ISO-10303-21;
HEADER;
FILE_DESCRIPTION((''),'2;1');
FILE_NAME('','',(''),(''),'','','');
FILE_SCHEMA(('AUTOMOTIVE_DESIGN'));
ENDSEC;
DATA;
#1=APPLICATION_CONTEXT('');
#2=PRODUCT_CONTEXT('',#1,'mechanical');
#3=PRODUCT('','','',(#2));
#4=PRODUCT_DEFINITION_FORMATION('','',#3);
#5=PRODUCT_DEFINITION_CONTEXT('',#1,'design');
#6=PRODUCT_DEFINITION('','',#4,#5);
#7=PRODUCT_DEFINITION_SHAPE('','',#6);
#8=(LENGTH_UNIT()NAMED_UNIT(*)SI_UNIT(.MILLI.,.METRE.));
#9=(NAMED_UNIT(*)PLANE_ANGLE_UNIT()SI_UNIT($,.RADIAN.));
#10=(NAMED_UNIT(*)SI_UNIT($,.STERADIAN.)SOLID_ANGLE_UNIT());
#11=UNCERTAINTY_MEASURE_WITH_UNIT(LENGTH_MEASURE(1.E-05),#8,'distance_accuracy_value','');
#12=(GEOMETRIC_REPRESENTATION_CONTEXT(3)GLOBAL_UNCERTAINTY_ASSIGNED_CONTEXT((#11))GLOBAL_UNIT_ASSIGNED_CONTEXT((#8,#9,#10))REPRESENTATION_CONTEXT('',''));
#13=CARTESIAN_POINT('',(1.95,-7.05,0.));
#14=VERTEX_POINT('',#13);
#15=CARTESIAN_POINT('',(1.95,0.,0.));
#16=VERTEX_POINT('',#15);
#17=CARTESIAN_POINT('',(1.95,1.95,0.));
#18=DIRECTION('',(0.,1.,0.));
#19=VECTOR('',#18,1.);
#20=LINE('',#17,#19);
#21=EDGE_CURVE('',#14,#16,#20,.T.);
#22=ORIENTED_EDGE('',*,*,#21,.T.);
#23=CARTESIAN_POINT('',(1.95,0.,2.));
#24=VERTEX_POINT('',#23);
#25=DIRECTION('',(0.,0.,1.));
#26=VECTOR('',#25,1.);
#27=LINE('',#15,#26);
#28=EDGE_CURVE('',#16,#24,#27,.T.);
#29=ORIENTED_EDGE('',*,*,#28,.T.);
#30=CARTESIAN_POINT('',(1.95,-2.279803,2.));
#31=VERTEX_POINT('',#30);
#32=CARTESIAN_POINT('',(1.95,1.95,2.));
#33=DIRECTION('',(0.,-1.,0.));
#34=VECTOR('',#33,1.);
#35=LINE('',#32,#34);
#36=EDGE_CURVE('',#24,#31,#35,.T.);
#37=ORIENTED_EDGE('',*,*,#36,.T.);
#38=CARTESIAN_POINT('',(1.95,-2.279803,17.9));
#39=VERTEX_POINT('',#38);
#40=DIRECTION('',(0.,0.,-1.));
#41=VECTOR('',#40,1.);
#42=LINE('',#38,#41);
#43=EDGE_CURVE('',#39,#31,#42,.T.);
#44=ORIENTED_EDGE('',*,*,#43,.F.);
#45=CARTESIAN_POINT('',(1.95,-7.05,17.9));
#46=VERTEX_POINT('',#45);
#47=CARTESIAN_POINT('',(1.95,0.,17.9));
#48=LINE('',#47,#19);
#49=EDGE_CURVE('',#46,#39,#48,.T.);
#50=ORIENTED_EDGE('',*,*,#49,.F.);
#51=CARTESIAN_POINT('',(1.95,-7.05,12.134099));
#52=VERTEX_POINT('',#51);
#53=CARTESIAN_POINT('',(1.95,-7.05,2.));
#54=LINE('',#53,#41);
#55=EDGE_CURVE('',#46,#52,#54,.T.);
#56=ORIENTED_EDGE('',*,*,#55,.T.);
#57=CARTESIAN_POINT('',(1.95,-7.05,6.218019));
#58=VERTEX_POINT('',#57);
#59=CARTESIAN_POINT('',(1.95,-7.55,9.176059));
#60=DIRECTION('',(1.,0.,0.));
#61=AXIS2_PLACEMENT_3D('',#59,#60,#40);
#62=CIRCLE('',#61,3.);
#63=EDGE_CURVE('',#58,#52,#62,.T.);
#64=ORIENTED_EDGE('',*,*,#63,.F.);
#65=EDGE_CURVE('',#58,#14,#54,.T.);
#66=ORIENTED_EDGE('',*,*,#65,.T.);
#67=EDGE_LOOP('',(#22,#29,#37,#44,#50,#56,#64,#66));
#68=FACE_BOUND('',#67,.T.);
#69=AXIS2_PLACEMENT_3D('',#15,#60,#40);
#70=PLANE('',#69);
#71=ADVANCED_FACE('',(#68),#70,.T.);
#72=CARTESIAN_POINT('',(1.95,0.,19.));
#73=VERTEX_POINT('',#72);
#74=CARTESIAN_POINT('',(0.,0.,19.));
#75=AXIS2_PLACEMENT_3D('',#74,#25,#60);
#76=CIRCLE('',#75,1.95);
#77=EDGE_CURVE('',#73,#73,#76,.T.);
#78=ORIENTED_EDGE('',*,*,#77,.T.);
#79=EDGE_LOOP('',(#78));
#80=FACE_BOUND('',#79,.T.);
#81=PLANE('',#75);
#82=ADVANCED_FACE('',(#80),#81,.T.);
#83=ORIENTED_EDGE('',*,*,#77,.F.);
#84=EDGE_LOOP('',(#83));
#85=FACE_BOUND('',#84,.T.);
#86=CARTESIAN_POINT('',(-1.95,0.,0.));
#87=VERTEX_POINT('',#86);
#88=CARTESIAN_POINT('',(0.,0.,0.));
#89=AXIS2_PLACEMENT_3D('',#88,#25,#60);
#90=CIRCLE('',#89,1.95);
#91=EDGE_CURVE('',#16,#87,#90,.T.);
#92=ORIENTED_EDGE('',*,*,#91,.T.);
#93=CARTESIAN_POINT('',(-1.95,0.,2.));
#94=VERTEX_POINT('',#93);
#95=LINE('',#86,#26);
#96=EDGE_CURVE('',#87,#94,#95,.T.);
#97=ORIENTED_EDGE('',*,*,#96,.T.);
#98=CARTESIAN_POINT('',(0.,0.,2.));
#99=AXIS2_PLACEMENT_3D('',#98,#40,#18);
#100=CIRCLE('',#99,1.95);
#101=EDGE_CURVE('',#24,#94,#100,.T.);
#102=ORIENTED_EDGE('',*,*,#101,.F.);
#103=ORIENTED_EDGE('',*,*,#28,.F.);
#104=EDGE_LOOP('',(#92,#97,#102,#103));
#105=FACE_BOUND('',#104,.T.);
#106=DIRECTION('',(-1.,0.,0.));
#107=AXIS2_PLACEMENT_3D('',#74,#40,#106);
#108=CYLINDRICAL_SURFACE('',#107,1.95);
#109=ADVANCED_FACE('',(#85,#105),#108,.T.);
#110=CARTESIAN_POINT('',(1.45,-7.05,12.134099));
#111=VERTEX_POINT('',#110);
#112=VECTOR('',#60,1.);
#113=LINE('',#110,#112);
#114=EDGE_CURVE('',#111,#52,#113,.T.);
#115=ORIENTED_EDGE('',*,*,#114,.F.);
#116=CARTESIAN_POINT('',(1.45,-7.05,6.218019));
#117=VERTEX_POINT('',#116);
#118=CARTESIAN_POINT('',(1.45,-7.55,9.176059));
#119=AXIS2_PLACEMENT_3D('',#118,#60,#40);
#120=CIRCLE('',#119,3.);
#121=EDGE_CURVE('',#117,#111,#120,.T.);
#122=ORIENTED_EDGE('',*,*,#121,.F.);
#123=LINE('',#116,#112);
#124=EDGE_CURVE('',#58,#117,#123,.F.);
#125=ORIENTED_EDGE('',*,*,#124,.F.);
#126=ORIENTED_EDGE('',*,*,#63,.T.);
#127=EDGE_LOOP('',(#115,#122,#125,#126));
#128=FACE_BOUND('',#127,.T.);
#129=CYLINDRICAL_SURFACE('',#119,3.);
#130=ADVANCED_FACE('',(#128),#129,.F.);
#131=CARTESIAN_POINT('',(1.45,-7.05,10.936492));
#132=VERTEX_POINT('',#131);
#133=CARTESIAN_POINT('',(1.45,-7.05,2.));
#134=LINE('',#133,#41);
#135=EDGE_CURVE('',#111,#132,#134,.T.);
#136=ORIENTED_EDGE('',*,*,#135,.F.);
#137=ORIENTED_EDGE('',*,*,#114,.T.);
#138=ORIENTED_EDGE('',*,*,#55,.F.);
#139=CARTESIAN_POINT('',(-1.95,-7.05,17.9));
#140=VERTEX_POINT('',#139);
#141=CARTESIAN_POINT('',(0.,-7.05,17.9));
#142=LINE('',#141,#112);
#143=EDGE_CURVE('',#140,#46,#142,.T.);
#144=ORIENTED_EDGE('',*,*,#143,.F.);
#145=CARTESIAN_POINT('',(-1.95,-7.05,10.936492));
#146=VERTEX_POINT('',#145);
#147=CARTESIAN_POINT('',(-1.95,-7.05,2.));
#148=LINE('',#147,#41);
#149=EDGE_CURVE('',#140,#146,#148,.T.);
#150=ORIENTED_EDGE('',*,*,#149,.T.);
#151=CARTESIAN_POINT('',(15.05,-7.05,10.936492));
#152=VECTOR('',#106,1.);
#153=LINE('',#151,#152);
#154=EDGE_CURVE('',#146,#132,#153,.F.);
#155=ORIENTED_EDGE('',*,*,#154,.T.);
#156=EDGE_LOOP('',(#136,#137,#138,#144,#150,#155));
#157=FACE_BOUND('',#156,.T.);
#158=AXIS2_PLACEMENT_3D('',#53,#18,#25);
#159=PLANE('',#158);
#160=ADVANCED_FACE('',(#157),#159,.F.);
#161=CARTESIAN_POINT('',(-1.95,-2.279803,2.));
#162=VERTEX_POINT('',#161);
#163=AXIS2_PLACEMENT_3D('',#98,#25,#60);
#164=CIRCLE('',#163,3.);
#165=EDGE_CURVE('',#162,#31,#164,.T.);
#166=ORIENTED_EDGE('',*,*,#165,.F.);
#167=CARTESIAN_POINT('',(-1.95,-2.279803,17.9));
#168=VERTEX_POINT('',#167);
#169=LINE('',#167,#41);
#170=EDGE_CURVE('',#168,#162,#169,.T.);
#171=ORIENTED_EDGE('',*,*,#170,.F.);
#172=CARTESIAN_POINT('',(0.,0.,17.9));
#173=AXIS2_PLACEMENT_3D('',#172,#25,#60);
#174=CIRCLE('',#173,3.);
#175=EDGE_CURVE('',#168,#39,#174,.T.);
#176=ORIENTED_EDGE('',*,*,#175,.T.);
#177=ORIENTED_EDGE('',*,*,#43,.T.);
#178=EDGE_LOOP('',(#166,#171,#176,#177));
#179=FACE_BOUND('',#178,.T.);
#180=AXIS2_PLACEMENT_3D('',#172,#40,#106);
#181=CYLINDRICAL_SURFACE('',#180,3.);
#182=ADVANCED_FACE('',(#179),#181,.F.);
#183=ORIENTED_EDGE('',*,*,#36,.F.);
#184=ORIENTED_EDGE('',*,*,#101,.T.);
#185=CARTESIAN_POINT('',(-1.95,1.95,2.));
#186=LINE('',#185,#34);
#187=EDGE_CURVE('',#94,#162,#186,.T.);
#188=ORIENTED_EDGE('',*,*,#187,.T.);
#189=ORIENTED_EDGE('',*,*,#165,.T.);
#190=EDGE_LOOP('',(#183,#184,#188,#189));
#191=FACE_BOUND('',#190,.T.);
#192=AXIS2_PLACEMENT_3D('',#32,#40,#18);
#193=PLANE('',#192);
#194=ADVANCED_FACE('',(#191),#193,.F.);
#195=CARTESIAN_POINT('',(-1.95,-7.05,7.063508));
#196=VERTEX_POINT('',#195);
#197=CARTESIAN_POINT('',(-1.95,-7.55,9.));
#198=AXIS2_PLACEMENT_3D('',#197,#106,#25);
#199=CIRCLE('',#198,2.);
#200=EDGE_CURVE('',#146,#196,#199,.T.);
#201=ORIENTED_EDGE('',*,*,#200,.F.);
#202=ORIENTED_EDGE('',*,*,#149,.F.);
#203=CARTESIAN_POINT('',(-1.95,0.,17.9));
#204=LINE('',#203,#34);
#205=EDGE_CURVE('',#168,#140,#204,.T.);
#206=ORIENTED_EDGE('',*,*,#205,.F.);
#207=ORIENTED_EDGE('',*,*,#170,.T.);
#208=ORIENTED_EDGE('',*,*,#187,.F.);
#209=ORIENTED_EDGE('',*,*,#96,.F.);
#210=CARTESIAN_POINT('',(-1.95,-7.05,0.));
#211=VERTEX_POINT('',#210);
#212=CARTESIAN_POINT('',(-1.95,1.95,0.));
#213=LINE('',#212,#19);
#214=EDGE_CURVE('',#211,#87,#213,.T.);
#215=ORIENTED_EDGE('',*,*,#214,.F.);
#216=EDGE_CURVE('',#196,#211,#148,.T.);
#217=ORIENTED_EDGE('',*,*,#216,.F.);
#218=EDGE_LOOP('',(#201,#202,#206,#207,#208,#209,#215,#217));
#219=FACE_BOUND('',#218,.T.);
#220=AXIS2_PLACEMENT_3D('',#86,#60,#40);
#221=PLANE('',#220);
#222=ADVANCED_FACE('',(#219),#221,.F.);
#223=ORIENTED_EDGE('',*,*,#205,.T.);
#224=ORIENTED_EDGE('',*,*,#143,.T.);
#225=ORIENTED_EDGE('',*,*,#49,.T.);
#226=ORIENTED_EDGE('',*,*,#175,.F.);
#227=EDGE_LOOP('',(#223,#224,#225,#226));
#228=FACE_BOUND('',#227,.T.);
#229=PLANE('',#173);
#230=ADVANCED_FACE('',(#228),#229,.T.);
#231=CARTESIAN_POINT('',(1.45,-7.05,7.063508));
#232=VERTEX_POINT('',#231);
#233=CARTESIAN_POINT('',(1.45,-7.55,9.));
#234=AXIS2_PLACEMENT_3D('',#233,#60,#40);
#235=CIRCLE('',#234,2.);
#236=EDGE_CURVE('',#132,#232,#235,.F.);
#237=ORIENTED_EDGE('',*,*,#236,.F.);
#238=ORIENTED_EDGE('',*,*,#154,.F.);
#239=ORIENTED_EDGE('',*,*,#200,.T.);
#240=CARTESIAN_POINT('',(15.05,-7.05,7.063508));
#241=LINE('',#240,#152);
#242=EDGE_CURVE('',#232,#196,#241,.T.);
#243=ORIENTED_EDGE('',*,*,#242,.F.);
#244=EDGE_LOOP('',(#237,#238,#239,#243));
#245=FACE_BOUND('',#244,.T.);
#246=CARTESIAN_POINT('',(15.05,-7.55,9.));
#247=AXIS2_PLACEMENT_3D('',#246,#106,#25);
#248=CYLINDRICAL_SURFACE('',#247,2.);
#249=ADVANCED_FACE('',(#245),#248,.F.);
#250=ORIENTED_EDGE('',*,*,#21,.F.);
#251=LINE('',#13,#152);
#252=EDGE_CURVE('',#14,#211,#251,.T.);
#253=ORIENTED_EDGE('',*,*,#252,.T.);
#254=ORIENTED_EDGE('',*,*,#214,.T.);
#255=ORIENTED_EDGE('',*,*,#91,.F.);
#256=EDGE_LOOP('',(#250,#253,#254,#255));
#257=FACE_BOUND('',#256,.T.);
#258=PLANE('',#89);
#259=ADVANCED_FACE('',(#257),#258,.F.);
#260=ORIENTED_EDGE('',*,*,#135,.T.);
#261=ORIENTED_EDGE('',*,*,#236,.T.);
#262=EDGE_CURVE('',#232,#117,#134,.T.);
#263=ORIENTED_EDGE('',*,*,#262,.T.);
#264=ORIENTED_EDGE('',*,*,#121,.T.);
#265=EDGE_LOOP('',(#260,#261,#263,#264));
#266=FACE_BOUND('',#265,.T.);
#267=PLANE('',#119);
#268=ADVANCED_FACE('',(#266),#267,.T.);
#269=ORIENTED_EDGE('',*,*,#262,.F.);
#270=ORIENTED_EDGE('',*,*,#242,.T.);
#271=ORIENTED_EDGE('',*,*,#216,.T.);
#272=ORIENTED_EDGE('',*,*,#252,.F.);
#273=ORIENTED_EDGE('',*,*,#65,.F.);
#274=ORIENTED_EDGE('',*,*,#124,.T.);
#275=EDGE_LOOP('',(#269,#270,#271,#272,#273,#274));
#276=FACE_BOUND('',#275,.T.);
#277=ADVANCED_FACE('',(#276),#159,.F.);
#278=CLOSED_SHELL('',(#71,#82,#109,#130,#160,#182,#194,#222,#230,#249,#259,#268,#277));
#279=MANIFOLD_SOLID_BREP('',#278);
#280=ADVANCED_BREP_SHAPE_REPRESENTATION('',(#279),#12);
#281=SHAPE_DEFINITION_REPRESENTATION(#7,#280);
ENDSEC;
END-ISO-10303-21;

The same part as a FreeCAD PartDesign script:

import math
import FreeCAD as App
import Part
import Sketcher
from FreeCAD import Vector
Q = App.Units.Quantity

doc = App.newDocument("Part")
body = doc.addObject("PartDesign::Body", "Body")

# Sketch on XY plane
sketch1 = body.newObject("Sketcher::SketchObject", "Sketch")
sketch1.AttachmentSupport = (doc.getObject("XY_Plane"), [""])
sketch1.MapMode = "FlatFace"
sketch1.addGeometry(Part.Circle(Vector(0, 0, 0), Vector(0, 0, 1), 1.95), False)
sketch1.addConstraint([
    Sketcher.Constraint("Coincident", 0, 3, -1, 1),
    Sketcher.Constraint("Diameter", 0, Q("3.9 mm")),
])
pad1 = body.newObject("PartDesign::Pad", "Pad")
pad1.Profile = sketch1
pad1.Length = 19

# Sketch on YZ plane
sketch2 = body.newObject("Sketcher::SketchObject", "Sketch001")
sketch2.AttachmentSupport = (doc.getObject("YZ_Plane"), [""])
sketch2.MapMode = "FlatFace"
sketch2.addGeometry([
    Part.LineSegment(Vector(1.95, 2, 0), Vector(-7.05, 2, 0)),
    Part.LineSegment(Vector(-7.05, 2, 0), Vector(-7.05, 0, 0)),
    Part.LineSegment(Vector(-7.05, 0, 0), Vector(1.95, 0, 0)),
    Part.LineSegment(Vector(1.95, 0, 0), Vector(1.95, 2, 0)),
], False)
sketch2.addConstraint([
    Sketcher.Constraint("Coincident", 0, 2, 1, 1),
    Sketcher.Constraint("Coincident", 1, 2, 2, 1),
    Sketcher.Constraint("Coincident", 2, 2, 3, 1),
    Sketcher.Constraint("Coincident", 3, 2, 0, 1),
    Sketcher.Constraint("Horizontal", 0),
    Sketcher.Constraint("Vertical", 1),
    Sketcher.Constraint("Horizontal", 2),
    Sketcher.Constraint("Vertical", 3),
    Sketcher.Constraint("PointOnObject", 1, 2, -1),
    Sketcher.Constraint("DistanceX", 0, 2, 0, 1, Q("9 mm")),
    Sketcher.Constraint("DistanceY", 1, 2, 1, 1, Q("2 mm")),
    Sketcher.Constraint("DistanceX", 0, 2, -1, 1, Q("7.05 mm")),
])
pad2 = body.newObject("PartDesign::Pad", "Pad001")
pad2.Profile = sketch2
pad2.Length = 3.9
pad2.Midplane = True

# Sketch on XY plane
sketch3 = body.newObject("Sketcher::SketchObject", "Sketch002")
sketch3.AttachmentSupport = (doc.getObject("XY_Plane"), [""])
sketch3.MapMode = "FlatFace"
sketch3.AttachmentOffset = App.Placement(Vector(0, 0, 19), App.Rotation())
sketch3.addGeometry([
    Part.LineSegment(Vector(-1.95, 1.95, 0), Vector(-1.95, 0, 0)),  # 0
    Part.ArcOfCircle(Part.Circle(Vector(0.000001, -0.000001, 0), Vector(0, 0, 1), 1.950001), math.radians(90.000022), math.radians(179.999978)),  # 1
    Part.LineSegment(Vector(0, 1.95, 0), Vector(-1.95, 1.95, 0)),  # 2
    Part.ArcOfCircle(Part.Circle(Vector(-0.000001, -0.000001, 0), Vector(0, 0, 1), 1.950001), math.radians(0.000022), math.radians(89.999978)),  # 3
    Part.LineSegment(Vector(1.95, 0, 0), Vector(1.95, 1.95, 0)),  # 4
    Part.LineSegment(Vector(1.95, 1.95, 0), Vector(0, 1.95, 0)),  # 5
], False)
sketch3.addConstraint([
    Sketcher.Constraint("Tangent", 0, 2, 1, 2),
    Sketcher.Constraint("Tangent", 1, 1, 2, 1),
    Sketcher.Constraint("Coincident", 2, 2, 0, 1),
    Sketcher.Constraint("Tangent", 3, 1, 4, 1),
    Sketcher.Constraint("Coincident", 4, 2, 5, 1),
    Sketcher.Constraint("Tangent", 5, 2, 3, 2),
    Sketcher.Constraint("Vertical", 0),
    Sketcher.Constraint("Horizontal", 2),
    Sketcher.Constraint("Vertical", 4),
    Sketcher.Constraint("Horizontal", 5),
    Sketcher.Constraint("Coincident", 1, 3, -1, 1),
    Sketcher.Constraint("Coincident", 3, 3, -1, 1),
    Sketcher.Constraint("Equal", 1, 3),
    Sketcher.Constraint("Radius", 1, Q("1.950001 mm")),
])
pocket1 = body.newObject("PartDesign::Pocket", "Pocket")
pocket1.Profile = sketch3
pocket1.Type = "ThroughAll"

# Sketch on XY plane
sketch4 = body.newObject("Sketcher::SketchObject", "Sketch003")
sketch4.AttachmentSupport = (doc.getObject("XY_Plane"), [""])
sketch4.MapMode = "FlatFace"
sketch4.AttachmentOffset = App.Placement(Vector(0, 0, 2), App.Rotation())
sketch4.addGeometry([
    Part.ArcOfCircle(Part.Circle(Vector(0, 0.000001, 0), Vector(0, 0, 1), 3.000001), math.radians(-130.541582), math.radians(-49.458418)),
    Part.LineSegment(Vector(-1.95, -2.279803, 0), Vector(-1.95, -7.05, 0)),
    Part.LineSegment(Vector(-1.95, -7.05, 0), Vector(1.95, -7.05, 0)),
    Part.LineSegment(Vector(1.95, -7.05, 0), Vector(1.95, -2.279803, 0)),
], False)
sketch4.addConstraint([
    Sketcher.Constraint("Coincident", 0, 1, 1, 1),
    Sketcher.Constraint("Coincident", 1, 2, 2, 1),
    Sketcher.Constraint("Coincident", 2, 2, 3, 1),
    Sketcher.Constraint("Coincident", 3, 2, 0, 2),
    Sketcher.Constraint("Vertical", 1),
    Sketcher.Constraint("Horizontal", 2),
    Sketcher.Constraint("Vertical", 3),
    Sketcher.Constraint("Coincident", 0, 3, -1, 1),
    Sketcher.Constraint("Horizontal", 0, 1, 3, 2),
    Sketcher.Constraint("Radius", 0, Q("3.000001 mm")),
    Sketcher.Constraint("DistanceX", 2, 1, 2, 2, Q("3.9 mm")),
    Sketcher.Constraint("DistanceY", 1, 2, -1, 1, Q("7.05 mm")),
])
pad3 = body.newObject("PartDesign::Pad", "Pad002")
pad3.Profile = sketch4
pad3.Length = 15.9

# Sketch on YZ plane
sketch5 = body.newObject("Sketcher::SketchObject", "Sketch004")
sketch5.AttachmentSupport = (doc.getObject("YZ_Plane"), [""])
sketch5.MapMode = "FlatFace"
sketch5.AttachmentOffset = App.Placement(Vector(0, 0, -1.95), App.Rotation())
sketch5.addGeometry(Part.Circle(Vector(-7.55, 9, 0), Vector(0, 0, 1), 2), False)
sketch5.addConstraint([
    Sketcher.Constraint("Diameter", 0, Q("4 mm")),
    Sketcher.Constraint("DistanceY", -1, 1, 0, 3, Q("9 mm")),
    Sketcher.Constraint("DistanceX", 0, 3, -1, 1, Q("7.55 mm")),
])
pocket2 = body.newObject("PartDesign::Pocket", "Pocket001")
pocket2.Profile = sketch5
pocket2.Length = 17
pocket2.Reversed = True

# Sketch on YZ plane
sketch6 = body.newObject("Sketcher::SketchObject", "Sketch005")
sketch6.AttachmentSupport = (doc.getObject("YZ_Plane"), [""])
sketch6.MapMode = "FlatFace"
sketch6.AttachmentOffset = App.Placement(Vector(0, 0, 1.95), App.Rotation())
sketch6.addGeometry(Part.Circle(Vector(-7.55, 9.176059, 0), Vector(0, 0, 1), 3), False)
sketch6.addConstraint([
    Sketcher.Constraint("Diameter", 0, Q("6 mm")),
    Sketcher.Constraint("DistanceX", 0, 3, -1, 1, Q("7.55 mm")),
    Sketcher.Constraint("DistanceY", -1, 1, 0, 3, Q("9.176059 mm")),
])
pocket3 = body.newObject("PartDesign::Pocket", "Pocket002")
pocket3.Profile = sketch6
pocket3.Length = 0.5

doc.recompute()
